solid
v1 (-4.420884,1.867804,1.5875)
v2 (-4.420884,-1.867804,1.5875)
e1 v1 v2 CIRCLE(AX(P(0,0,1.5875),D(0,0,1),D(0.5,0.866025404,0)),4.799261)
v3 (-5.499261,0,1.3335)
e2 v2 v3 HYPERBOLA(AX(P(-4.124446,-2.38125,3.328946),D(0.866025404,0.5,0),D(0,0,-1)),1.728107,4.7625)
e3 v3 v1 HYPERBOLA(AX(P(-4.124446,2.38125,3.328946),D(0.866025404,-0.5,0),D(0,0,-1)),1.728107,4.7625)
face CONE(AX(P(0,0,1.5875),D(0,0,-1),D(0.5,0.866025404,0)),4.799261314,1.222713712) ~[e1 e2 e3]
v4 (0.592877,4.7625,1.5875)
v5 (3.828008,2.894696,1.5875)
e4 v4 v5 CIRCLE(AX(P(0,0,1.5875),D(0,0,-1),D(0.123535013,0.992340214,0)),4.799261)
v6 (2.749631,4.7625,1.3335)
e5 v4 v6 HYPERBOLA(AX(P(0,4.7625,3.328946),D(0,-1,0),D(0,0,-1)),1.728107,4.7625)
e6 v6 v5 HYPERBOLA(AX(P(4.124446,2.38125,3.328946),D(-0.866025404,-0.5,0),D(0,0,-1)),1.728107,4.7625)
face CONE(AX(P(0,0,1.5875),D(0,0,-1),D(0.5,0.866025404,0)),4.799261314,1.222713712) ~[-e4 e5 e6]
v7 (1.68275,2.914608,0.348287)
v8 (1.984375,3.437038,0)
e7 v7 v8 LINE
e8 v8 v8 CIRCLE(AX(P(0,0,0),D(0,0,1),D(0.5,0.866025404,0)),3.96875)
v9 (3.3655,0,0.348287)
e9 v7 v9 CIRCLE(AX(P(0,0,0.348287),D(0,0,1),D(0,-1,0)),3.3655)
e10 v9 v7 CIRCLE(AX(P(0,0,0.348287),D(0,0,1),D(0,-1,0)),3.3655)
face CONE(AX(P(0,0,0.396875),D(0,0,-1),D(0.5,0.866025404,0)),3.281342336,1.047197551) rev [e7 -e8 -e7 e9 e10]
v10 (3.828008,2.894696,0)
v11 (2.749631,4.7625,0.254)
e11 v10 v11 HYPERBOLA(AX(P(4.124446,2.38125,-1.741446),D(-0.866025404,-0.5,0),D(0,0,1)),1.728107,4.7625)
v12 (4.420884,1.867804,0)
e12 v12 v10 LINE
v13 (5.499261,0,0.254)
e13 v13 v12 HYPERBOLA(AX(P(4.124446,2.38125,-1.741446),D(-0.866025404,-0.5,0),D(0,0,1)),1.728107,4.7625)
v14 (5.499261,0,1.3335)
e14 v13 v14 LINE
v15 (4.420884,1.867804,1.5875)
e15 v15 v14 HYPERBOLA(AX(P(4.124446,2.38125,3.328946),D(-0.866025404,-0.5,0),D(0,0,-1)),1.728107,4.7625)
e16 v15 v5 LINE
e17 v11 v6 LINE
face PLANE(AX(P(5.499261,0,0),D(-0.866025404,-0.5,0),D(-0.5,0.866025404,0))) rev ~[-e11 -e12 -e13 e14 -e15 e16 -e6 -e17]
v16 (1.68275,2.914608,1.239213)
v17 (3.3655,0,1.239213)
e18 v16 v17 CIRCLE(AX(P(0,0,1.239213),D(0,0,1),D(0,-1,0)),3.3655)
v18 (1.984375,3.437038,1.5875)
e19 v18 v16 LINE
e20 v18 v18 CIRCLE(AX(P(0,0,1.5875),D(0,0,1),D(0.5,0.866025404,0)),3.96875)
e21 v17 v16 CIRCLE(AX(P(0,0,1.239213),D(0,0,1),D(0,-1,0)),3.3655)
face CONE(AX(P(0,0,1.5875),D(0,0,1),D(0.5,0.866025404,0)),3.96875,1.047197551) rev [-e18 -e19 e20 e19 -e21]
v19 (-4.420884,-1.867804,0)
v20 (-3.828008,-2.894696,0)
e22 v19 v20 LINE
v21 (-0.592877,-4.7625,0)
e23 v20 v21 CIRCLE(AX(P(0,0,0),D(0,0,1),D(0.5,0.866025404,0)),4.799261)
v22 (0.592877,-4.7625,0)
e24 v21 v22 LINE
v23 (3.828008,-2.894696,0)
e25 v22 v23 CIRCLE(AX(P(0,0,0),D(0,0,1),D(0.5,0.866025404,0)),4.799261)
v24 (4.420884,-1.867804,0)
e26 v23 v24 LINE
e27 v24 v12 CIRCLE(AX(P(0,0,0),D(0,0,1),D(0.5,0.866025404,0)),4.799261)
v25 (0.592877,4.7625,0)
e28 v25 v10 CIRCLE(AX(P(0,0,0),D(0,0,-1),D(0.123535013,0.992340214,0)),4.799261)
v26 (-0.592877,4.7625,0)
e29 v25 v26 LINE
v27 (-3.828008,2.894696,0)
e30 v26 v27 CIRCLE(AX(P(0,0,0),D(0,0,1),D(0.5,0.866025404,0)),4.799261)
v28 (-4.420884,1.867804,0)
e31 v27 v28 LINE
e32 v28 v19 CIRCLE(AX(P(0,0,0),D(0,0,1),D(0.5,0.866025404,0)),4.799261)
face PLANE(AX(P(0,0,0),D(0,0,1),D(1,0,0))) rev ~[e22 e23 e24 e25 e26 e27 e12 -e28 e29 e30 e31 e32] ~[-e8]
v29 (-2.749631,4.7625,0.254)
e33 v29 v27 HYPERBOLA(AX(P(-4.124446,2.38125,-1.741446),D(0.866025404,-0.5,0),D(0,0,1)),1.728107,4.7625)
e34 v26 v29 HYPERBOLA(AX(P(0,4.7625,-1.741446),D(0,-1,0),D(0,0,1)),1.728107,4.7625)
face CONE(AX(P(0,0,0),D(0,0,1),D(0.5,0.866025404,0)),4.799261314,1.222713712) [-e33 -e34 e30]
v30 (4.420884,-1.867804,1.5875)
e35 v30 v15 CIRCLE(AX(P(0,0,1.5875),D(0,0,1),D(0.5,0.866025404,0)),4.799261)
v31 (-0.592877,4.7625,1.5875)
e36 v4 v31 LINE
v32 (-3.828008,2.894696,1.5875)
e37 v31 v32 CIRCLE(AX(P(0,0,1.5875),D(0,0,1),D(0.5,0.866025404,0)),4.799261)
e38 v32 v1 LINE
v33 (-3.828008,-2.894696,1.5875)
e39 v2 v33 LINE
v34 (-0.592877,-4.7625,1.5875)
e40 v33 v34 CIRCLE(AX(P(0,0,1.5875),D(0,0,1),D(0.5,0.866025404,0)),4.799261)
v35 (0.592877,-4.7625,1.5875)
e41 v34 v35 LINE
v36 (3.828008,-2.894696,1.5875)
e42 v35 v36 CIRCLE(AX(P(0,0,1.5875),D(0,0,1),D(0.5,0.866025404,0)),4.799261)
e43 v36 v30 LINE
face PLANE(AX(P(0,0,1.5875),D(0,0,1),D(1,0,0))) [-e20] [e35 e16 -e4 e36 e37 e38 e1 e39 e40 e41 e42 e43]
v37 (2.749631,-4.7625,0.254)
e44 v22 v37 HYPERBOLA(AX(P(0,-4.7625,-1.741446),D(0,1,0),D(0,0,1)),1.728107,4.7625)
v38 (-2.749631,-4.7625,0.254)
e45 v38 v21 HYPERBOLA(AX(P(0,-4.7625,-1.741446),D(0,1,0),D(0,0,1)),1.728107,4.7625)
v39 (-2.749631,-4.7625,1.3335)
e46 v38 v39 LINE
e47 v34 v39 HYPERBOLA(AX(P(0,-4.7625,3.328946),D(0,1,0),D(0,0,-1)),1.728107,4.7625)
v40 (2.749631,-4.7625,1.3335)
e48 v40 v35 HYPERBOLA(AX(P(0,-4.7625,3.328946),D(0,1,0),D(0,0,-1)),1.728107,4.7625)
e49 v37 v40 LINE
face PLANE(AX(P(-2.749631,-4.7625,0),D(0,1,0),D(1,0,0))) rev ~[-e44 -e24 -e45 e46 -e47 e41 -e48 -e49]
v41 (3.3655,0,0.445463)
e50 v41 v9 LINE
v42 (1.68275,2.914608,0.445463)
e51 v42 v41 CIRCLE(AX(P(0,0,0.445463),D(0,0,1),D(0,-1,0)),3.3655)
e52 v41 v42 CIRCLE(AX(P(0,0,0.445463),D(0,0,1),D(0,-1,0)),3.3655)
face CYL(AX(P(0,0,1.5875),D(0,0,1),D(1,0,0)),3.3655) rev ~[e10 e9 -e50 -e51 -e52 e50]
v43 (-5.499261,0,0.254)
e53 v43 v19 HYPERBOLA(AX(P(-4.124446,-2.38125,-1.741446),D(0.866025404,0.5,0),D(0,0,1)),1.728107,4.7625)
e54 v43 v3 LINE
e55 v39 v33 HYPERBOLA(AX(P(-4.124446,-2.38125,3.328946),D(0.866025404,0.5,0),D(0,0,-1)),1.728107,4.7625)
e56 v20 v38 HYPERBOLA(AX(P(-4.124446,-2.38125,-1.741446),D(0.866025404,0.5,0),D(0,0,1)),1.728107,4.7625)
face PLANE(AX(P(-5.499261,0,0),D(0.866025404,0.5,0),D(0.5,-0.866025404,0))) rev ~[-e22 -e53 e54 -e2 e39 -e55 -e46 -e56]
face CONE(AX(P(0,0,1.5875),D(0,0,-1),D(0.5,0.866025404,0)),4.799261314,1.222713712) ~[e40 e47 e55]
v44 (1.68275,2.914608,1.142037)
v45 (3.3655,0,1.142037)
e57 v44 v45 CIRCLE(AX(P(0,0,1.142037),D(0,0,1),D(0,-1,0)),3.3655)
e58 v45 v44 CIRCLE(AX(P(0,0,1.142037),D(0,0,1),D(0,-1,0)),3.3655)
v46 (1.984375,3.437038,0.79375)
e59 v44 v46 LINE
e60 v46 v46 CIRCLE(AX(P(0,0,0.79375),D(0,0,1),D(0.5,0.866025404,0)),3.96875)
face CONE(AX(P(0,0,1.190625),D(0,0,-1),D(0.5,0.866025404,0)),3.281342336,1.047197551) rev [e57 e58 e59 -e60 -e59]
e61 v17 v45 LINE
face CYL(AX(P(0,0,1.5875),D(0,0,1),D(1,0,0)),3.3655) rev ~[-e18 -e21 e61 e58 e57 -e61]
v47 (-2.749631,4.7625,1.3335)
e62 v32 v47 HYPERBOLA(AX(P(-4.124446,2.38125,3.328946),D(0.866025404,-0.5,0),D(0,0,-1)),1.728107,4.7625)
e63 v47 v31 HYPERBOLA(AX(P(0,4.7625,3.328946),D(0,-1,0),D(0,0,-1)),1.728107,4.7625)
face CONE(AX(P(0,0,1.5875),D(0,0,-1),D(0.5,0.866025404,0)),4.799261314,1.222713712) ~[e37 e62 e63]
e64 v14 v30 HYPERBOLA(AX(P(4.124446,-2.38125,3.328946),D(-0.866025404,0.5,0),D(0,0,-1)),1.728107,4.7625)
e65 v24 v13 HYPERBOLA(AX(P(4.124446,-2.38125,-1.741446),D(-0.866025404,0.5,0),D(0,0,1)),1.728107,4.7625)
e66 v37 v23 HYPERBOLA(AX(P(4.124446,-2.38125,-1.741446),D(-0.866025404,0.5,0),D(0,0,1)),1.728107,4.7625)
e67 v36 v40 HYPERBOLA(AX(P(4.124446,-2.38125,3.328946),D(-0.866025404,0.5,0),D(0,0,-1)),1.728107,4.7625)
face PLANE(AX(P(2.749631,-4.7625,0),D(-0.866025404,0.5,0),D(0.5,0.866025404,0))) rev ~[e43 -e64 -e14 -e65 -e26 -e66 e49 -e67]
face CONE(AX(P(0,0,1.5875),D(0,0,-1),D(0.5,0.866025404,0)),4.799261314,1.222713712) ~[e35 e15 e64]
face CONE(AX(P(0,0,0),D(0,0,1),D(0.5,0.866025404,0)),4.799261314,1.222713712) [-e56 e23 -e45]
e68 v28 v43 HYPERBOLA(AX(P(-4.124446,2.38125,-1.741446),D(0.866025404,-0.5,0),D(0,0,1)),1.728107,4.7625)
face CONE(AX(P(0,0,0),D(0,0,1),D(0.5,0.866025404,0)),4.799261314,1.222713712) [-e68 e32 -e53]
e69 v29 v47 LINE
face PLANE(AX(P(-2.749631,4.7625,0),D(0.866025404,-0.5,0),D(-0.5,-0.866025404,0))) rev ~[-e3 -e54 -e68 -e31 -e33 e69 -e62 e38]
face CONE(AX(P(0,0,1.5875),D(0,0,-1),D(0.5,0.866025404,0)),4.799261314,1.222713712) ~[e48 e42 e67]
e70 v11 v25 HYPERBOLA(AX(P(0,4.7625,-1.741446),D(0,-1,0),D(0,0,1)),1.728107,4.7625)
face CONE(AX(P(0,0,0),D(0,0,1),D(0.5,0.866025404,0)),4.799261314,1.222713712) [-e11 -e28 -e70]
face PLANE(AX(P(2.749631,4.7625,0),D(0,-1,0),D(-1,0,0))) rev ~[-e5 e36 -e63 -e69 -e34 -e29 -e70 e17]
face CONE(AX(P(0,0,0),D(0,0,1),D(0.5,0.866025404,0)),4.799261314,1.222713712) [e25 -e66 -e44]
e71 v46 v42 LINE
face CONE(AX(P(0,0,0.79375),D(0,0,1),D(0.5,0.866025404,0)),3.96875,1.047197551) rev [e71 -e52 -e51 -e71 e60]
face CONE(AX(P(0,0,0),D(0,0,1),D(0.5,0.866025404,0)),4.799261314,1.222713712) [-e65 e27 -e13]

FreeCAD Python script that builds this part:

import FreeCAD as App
import Part
import Sketcher
from FreeCAD import Vector
Q = App.Units.Quantity


def add_polygon(sketch, points):
    """Adds a closed chain of lines whose ends are joined by coincident constraints."""
    first, n = sketch.GeometryCount, len(points)
    for a, b in zip(points, points[1:] + points[:1]):
        sketch.addGeometry(Part.LineSegment(App.Vector(*a, 0), App.Vector(*b, 0)), False)
    for i in range(n):
        sketch.addConstraint(Sketcher.Constraint("Coincident", first + i, 2, first + (i + 1) % n, 1))

doc = App.newDocument("Part")
params = doc.addObject("Spreadsheet::Sheet", "Params")
for row, (alias, value) in enumerate([
    ("pad1_length", "0.0625 in"),
    ("sketch2_diameter", "0.265 in"),
    ("sketch3_width", "0.01 in"),
    ("groove_angle", "360 deg"),
    ("sketch4_width", "0.03125 in"),
    ("groove2_angle", "360 deg"),
    ("linearpattern_pitch", "0.03125 in"),
], start=1):
    params.set(f"A{row}", alias)
    params.set(f"B{row}", "=" + value)
    params.setAlias(f"B{row}", alias)

body = doc.addObject("PartDesign::Body", "Body")

sketch1 = body.newObject("Sketcher::SketchObject", "Sketch")
sketch1.AttachmentSupport = (doc.getObject("XY_Plane"), [""])
sketch1.MapMode = "FlatFace"
add_polygon(sketch1, [(5, 0), (3, 5), (-3, 5), (-5, 0), (-3, -5), (3, -5)])
sketch1.addConstraint(Sketcher.Constraint("Horizontal", 1))
sketch1.addConstraint(Sketcher.Constraint("Horizontal", 4))
sketch1.addConstraint(Sketcher.Constraint("Symmetric", 0, 2, 3, 2, -1, 1))
sketch1.addConstraint(Sketcher.Constraint("Symmetric", 2, 2, 5, 2, -1, 1))
sketch1.addConstraint(Sketcher.Constraint("PointOnObject", 2, 2, -1))
sketch1.addConstraint(Sketcher.Constraint("Parallel", 2, 5))
sketch1.addConstraint(Sketcher.Constraint("Vertical", 1, 2, 3, 2))
sketch1.addConstraint(Sketcher.Constraint("Angle", 0, Q("120 deg")))
sketch1.addConstraint(Sketcher.Constraint("DistanceY", -1, 1, 0, 2, Q("0.1875 in")))
sketch1.addConstraint(Sketcher.Constraint("DistanceX", 1, 2, 1, 1, Q("5.499261 mm")))
pad1 = body.newObject("PartDesign::Pad", "Pad")
pad1.Profile = sketch1
pad1.setExpression("Length", "Params.pad1_length")

sketch2 = body.newObject("Sketcher::SketchObject", "Sketch001")
sketch2.AttachmentSupport = (doc.getObject("XY_Plane"), [""])
sketch2.MapMode = "FlatFace"
sketch2.AttachmentOffset = App.Placement(Vector(0, 0, 0.0625 * 25.4), App.Rotation())
sketch2.addGeometry(Part.Circle(Vector(0, 0, 0), Vector(0, 0, 1), 3.4), False)
sketch2.addConstraint(Sketcher.Constraint("Coincident", 0, 3, -1, 1))
sketch2.addConstraint(Sketcher.Constraint("Diameter", 0, Q("0.265 in")))
sketch2.setExpression("Constraints[1]", "Params.sketch2_diameter")
pocket1 = body.newObject("PartDesign::Pocket", "Pocket")
pocket1.Profile = sketch2
pocket1.Type = "ThroughAll"

sketch3 = body.newObject("Sketcher::SketchObject", "Sketch002")
sketch3.Placement = App.Placement(Vector(0, 0, 0), App.Rotation(Vector(0, 0, 1), Vector(0.5, 0.866025404, 0), Vector(-0.866025404, 0.5, 0), "ZXY"))
add_polygon(sketch3, [(1.59, 5.5), (1.33, 5.5), (1.59, 4.8)])
sketch3.addConstraint(Sketcher.Constraint("Horizontal", 0))
sketch3.addConstraint(Sketcher.Constraint("Vertical", 2))
sketch3.addConstraint(Sketcher.Constraint("DistanceX", 0, 2, 0, 1, Q("0.01 in")))
sketch3.addConstraint(Sketcher.Constraint("DistanceX", -1, 1, 1, 2, Q("0.0625 in")))
sketch3.addConstraint(Sketcher.Constraint("DistanceY", 2, 1, 2, 2, Q("0.7 mm")))
sketch3.addConstraint(Sketcher.Constraint("DistanceY", -1, 1, 0, 2, Q("5.499261 mm")))
sketch3.setExpression("Constraints[5]", "Params.sketch3_width")
groove = body.newObject("PartDesign::Groove", "Groove")
groove.Profile = sketch3
groove.ReferenceAxis = (sketch3, ["H_Axis"])
groove.setExpression("Angle", "Params.groove_angle")
doc.recompute()

datumplane = body.newObject("PartDesign::Plane", "DatumPlane")
datumplane.AttachmentSupport = (doc.getObject("XY_Plane"), [""])
datumplane.MapMode = "FlatFace"
datumplane.AttachmentOffset = App.Placement(Vector(0, 0, 0.03125 * 25.4), App.Rotation())
mirrored = body.newObject("PartDesign::Mirrored", "Mirrored")
mirrored.Originals = [groove]
mirrored.MirrorPlane = (datumplane, [""])
body.Tip = mirrored

sketch4 = body.newObject("Sketcher::SketchObject", "Sketch003")
sketch4.Placement = App.Placement(Vector(0, 0, 0), App.Rotation(Vector(0, 0, 1), Vector(0.5, 0.866025404, 0), Vector(-0.866025404, 0.5, 0), "ZXY"))
add_polygon(sketch4, [(1.6, 4), (1.2, 3.3), (2, 3.3)])
sketch4.addConstraint(Sketcher.Constraint("Horizontal", 1))
sketch4.addConstraint(Sketcher.Constraint("Equal", 0, 2))
sketch4.addConstraint(Sketcher.Constraint("Angle", 0, Q("-120 deg")))
sketch4.addConstraint(Sketcher.Constraint("DistanceX", 1, 1, 1, 2, Q("0.03125 in")))
sketch4.addConstraint(Sketcher.Constraint("DistanceX", -1, 1, 0, 2, Q("0.046875 in")))
sketch4.addConstraint(Sketcher.Constraint("DistanceY", -1, 1, 2, 2, Q("0.15625 in")))
sketch4.setExpression("Constraints[6]", "Params.sketch4_width")
groove2 = body.newObject("PartDesign::Groove", "Groove001")
groove2.Profile = sketch4
groove2.ReferenceAxis = (sketch4, ["H_Axis"])
groove2.setExpression("Angle", "Params.groove2_angle")
doc.recompute()

linearpattern = body.newObject("PartDesign::LinearPattern", "LinearPattern")
linearpattern.Originals = [groove2]
linearpattern.Direction = (doc.getObject("Z_Axis"), [""])
linearpattern.Mode = "offset"
linearpattern.setExpression("Offset", "Params.linearpattern_pitch")
linearpattern.Occurrences = 3
linearpattern.Reversed = True
body.Tip = linearpattern

doc.recompute()
